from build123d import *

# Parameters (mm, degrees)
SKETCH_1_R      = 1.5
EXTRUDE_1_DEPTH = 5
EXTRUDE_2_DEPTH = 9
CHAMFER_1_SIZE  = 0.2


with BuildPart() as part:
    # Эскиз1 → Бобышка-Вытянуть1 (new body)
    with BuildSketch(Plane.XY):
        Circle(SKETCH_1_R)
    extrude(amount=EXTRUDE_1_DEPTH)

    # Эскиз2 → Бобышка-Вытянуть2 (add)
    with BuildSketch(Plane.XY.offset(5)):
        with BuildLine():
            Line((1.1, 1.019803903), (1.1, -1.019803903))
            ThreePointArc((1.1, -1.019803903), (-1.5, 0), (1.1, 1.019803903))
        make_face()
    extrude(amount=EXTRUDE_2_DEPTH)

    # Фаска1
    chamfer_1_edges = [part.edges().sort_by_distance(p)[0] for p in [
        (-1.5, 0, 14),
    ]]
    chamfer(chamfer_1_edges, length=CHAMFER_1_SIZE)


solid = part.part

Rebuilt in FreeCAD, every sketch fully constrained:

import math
import FreeCAD as App
import Part
import Sketcher

V = App.Vector


def edges_at(feature, points):
    """Names of the edges that pass closest to the given points."""
    edges = feature.Shape.Edges
    near = lambda p: min(range(len(edges)), key=lambda i: edges[i].distToShape(Part.Vertex(*p))[0])
    return sorted({f"Edge{near(p) + 1}" for p in points})

doc = App.newDocument("Part")
body = doc.addObject("PartDesign::Body", "Body")

# Sketch on XY plane
sketch1 = doc.addObject("Sketcher::SketchObject", "Sketch")
body.addObject(sketch1)
sketch1.AttachmentSupport = (doc.XY_Plane, [""])
sketch1.MapMode = "FlatFace"
sketch1.addGeometry(Part.Circle(V(0, 0, 0), V(0, 0, 1), 1.5), False)
sketch1.addConstraint(Sketcher.Constraint("Coincident", 0, 3, -1, 1))
sketch1.addConstraint(Sketcher.Constraint("Diameter", 0, 3.0))
pad1 = doc.addObject("PartDesign::Pad", "Pad")
body.addObject(pad1)
pad1.Profile = sketch1
pad1.Length = 5

# Sketch on XY plane
sketch2 = doc.addObject("Sketcher::SketchObject", "Sketch001")
body.addObject(sketch2)
sketch2.AttachmentSupport = (doc.XY_Plane, [""])
sketch2.MapMode = "FlatFace"
sketch2.AttachmentOffset = App.Placement(V(0, 0, 5), App.Rotation())
sketch2.addGeometry(Part.LineSegment(V(1.1, -1.019804, 0), V(1.1, 1.019804, 0)), False)
sketch2.addGeometry(Part.ArcOfCircle(Part.Circle(V(0, 0, 0), V(0, 0, 1), 1.5), math.radians(42.833428), math.radians(317.166572)), False)
sketch2.addConstraint(Sketcher.Constraint("Coincident", 0, 1, 1, 2))
sketch2.addConstraint(Sketcher.Constraint("Coincident", 1, 1, 0, 2))
sketch2.addConstraint(Sketcher.Constraint("Vertical", 0))
sketch2.addConstraint(Sketcher.Constraint("Coincident", 1, 3, -1, 1))
sketch2.addConstraint(Sketcher.Constraint("Radius", 1, 1.5))
sketch2.addConstraint(Sketcher.Constraint("DistanceX", -1, 1, 0, 1, 1.1))
pad2 = doc.addObject("PartDesign::Pad", "Pad001")
body.addObject(pad2)
pad2.Profile = sketch2
pad2.Length = 9
doc.recompute()

chamfer = doc.addObject("PartDesign::Chamfer", "Chamfer")
body.addObject(chamfer)
chamfer.Base = (pad2, edges_at(pad2, [(-1.5, 0, 14)]))
chamfer.Size = 0.2

doc.recompute()
